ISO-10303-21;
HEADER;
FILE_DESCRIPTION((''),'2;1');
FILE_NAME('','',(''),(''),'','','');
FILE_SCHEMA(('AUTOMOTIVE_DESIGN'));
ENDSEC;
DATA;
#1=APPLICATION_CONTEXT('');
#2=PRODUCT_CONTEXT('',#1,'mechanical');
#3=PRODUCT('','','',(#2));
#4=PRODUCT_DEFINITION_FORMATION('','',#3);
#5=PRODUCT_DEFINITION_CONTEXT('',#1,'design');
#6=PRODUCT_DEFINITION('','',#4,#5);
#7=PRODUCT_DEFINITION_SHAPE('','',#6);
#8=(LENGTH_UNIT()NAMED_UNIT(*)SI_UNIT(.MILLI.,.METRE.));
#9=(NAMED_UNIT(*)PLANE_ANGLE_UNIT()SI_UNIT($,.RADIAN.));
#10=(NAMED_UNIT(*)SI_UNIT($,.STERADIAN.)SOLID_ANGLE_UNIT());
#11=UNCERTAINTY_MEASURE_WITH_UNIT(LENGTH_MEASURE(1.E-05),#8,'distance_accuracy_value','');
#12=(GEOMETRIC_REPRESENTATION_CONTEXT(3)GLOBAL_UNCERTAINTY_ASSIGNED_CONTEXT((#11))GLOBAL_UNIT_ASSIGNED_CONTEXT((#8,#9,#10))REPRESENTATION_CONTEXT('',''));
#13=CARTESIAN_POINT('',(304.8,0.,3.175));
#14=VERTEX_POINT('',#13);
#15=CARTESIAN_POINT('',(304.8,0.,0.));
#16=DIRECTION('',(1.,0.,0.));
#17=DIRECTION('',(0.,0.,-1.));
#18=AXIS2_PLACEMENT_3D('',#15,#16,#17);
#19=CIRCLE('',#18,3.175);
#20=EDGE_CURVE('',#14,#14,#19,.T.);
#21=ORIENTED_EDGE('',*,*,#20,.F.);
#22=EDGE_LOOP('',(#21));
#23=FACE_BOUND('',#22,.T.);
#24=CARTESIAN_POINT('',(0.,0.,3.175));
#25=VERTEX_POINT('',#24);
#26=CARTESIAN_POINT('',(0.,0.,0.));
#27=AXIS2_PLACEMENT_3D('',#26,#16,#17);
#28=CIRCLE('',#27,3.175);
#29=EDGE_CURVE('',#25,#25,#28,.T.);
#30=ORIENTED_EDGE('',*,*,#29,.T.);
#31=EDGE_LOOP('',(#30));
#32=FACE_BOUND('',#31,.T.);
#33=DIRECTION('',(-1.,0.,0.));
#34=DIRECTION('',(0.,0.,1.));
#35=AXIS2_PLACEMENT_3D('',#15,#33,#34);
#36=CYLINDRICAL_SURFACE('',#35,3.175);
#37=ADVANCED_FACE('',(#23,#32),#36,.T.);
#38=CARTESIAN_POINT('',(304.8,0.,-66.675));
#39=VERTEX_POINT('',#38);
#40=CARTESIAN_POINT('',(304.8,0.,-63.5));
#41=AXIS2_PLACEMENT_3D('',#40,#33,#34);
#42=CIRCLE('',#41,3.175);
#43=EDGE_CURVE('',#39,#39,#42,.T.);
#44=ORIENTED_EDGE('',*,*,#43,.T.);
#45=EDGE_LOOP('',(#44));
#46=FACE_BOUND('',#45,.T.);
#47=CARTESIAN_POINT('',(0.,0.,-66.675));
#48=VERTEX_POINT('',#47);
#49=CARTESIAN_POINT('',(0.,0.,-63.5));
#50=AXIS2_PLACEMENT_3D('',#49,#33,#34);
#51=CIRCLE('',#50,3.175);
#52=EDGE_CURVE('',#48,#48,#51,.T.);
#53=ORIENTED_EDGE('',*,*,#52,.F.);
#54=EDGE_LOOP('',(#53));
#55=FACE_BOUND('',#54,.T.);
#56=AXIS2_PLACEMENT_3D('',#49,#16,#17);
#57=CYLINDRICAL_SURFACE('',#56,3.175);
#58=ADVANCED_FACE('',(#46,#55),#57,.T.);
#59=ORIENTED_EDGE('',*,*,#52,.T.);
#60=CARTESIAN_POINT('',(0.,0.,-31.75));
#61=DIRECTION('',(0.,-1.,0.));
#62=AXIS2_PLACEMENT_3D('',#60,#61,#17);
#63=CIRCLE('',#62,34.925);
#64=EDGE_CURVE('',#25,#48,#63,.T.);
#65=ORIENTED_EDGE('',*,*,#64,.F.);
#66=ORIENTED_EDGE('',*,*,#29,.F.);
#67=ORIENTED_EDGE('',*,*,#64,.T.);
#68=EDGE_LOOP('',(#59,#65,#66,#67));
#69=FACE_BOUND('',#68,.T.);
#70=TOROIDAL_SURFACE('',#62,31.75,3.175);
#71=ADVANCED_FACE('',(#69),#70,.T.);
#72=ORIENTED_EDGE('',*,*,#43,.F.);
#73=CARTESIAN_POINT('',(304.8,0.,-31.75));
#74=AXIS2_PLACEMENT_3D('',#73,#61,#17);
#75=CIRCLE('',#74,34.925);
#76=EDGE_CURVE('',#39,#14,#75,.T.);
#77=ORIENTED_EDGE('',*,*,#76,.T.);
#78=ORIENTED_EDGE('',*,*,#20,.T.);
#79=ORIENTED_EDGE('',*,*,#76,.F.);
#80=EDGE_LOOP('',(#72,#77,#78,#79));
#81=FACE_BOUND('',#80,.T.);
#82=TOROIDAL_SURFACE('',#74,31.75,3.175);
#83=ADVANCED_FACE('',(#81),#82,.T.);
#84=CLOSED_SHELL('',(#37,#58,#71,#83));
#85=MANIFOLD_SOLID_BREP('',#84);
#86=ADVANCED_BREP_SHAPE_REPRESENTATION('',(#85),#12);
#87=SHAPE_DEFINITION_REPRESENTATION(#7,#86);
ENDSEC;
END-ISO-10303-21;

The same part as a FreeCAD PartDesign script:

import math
import FreeCAD as App
import Part
import Sketcher

V = App.Vector
Q = App.Units.Quantity

doc = App.newDocument("Part")
body = doc.addObject("PartDesign::Body", "Body")

# Sketch on YZ plane
sketch1 = doc.addObject("Sketcher::SketchObject", "Sketch")
body.addObject(sketch1)
sketch1.AttachmentSupport = (doc.YZ_Plane, [""])
sketch1.MapMode = "FlatFace"
sketch1.addGeometry(Part.Circle(V(0, 0, 0), V(0, 0, 1), 3.2), False)
sketch1.addConstraint(Sketcher.Constraint("Coincident", 0, 3, -1, 1))
sketch1.addConstraint(Sketcher.Constraint("Diameter", 0, Q("0.25 in")))

# Sketch on XZ plane
sketch2 = doc.addObject("Sketcher::SketchObject", "Sketch001")
body.addObject(sketch2)
sketch2.AttachmentSupport = (doc.XZ_Plane, [""])
sketch2.MapMode = "FlatFace"
sketch2.addGeometry(Part.LineSegment(V(0, 0, 0), V(305, 0, 0)), False)
sketch2.addGeometry(Part.ArcOfCircle(Part.Circle(V(305, -32, 0), V(0, 0, 1), 32), math.radians(-90), math.radians(90)), False)
sketch2.addGeometry(Part.LineSegment(V(305, -64, 0), V(0, -64, 0)), False)
sketch2.addGeometry(Part.ArcOfCircle(Part.Circle(V(0, -32, 0), V(0, 0, 1), 32), math.radians(90), math.radians(270)), False)
sketch2.addConstraint(Sketcher.Constraint("Tangent", 0, 2, 1, 2))
sketch2.addConstraint(Sketcher.Constraint("Tangent", 1, 1, 2, 1))
sketch2.addConstraint(Sketcher.Constraint("Tangent", 2, 2, 3, 2))
sketch2.addConstraint(Sketcher.Constraint("Tangent", 3, 1, 0, 1))
sketch2.addConstraint(Sketcher.Constraint("Horizontal", 0))
sketch2.addConstraint(Sketcher.Constraint("Horizontal", 2))
sketch2.addConstraint(Sketcher.Constraint("Coincident", 3, 1, -1, 1))
sketch2.addConstraint(Sketcher.Constraint("DistanceX", 0, 1, 0, 2, Q("12 in")))
sketch2.addConstraint(Sketcher.Constraint("Radius", 1, Q("1.25 in")))
doc.recompute()

additivepipe = doc.addObject("PartDesign::AdditivePipe", "AdditivePipe")
body.addObject(additivepipe)
additivepipe.Profile = sketch1
additivepipe.Spine = (sketch2, ["Edge1", "Edge2", "Edge3", "Edge4"])

doc.recompute()
